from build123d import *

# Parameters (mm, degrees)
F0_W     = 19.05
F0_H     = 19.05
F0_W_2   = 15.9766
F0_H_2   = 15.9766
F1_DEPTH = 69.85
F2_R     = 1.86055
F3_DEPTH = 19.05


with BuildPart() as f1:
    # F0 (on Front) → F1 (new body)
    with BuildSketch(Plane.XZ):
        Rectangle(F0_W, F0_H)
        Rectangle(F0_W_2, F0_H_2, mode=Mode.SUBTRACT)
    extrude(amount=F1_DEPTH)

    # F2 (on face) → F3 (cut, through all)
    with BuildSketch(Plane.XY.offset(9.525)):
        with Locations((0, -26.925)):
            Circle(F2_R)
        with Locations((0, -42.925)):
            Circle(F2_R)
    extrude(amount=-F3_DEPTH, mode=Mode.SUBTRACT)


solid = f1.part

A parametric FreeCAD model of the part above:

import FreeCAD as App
import Part
import Sketcher

V = App.Vector
Q = App.Units.Quantity

doc = App.newDocument("Part")
body = doc.addObject("PartDesign::Body", "Body")

# Sketch on XZ plane
sketch1 = doc.addObject("Sketcher::SketchObject", "Sketch")
body.addObject(sketch1)
sketch1.AttachmentSupport = (doc.XZ_Plane, [""])
sketch1.MapMode = "FlatFace"
sketch1.addGeometry([
    Part.LineSegment(V(-9.525, 9.525, 0), V(-9.525, -9.525, 0)),  # 0
    Part.LineSegment(V(-9.525, -9.525, 0), V(9.525, -9.525, 0)),  # 1
    Part.LineSegment(V(9.525, -9.525, 0), V(9.525, 9.525, 0)),  # 2
    Part.LineSegment(V(9.525, 9.525, 0), V(-9.525, 9.525, 0)),  # 3
    Part.LineSegment(V(7.9883, -7.9883, 0), V(-7.9883, -7.9883, 0)),  # 4
    Part.LineSegment(V(-7.9883, -7.9883, 0), V(-7.9883, 7.9883, 0)),  # 5
    Part.LineSegment(V(-7.9883, 7.9883, 0), V(7.9883, 7.9883, 0)),  # 6
    Part.LineSegment(V(7.9883, 7.9883, 0), V(7.9883, -7.9883, 0)),  # 7
], False)
sketch1.addConstraint([
    Sketcher.Constraint("Coincident", 0, 2, 1, 1),
    Sketcher.Constraint("Coincident", 1, 2, 2, 1),
    Sketcher.Constraint("Coincident", 2, 2, 3, 1),
    Sketcher.Constraint("Coincident", 3, 2, 0, 1),
    Sketcher.Constraint("Coincident", 4, 2, 5, 1),
    Sketcher.Constraint("Coincident", 5, 2, 6, 1),
    Sketcher.Constraint("Coincident", 6, 2, 7, 1),
    Sketcher.Constraint("Coincident", 7, 2, 4, 1),
    Sketcher.Constraint("Vertical", 0),
    Sketcher.Constraint("Horizontal", 1),
    Sketcher.Constraint("Vertical", 2),
    Sketcher.Constraint("Horizontal", 3),
    Sketcher.Constraint("Horizontal", 4),
    Sketcher.Constraint("Vertical", 5),
    Sketcher.Constraint("Horizontal", 6),
    Sketcher.Constraint("Vertical", 7),
    Sketcher.Constraint("Symmetric", 0, 2, 2, 2, -1, 1),
    Sketcher.Constraint("Symmetric", 4, 2, 6, 2, -1, 1),
    Sketcher.Constraint("Equal", 3, 0),
    Sketcher.Constraint("Equal", 6, 5),
    Sketcher.Constraint("DistanceX", 1, 1, 1, 2, Q("0.75 in")),
    Sketcher.Constraint("DistanceX", 4, 2, 4, 1, Q("0.629 in")),
])
pad1 = doc.addObject("PartDesign::Pad", "Pad")
body.addObject(pad1)
pad1.Profile = sketch1
pad1.Length = Q("2.75 in")

# Sketch on XY plane
sketch2 = doc.addObject("Sketcher::SketchObject", "Sketch001")
body.addObject(sketch2)
sketch2.AttachmentSupport = (doc.XY_Plane, [""])
sketch2.MapMode = "FlatFace"
sketch2.AttachmentOffset = App.Placement(V(0, 0, 0.375 * 25.4), App.Rotation())
sketch2.addGeometry([
    Part.Circle(V(0, -26.925, 0), V(0, 0, 1), 1.86055),
    Part.Circle(V(0, -42.925, 0), V(0, 0, 1), 1.86055),
], False)
sketch2.addConstraint([
    Sketcher.Constraint("Equal", 0, 1),
    Sketcher.Constraint("PointOnObject", 0, 3, -2),
    Sketcher.Constraint("PointOnObject", 1, 3, -2),
    Sketcher.Constraint("Diameter", 0, Q("0.1465 in")),
    Sketcher.Constraint("DistanceY", 0, 3, -1, 1, Q("26.925 mm")),
    Sketcher.Constraint("DistanceY", 1, 3, -1, 1, Q("42.925 mm")),
])
pocket1 = doc.addObject("PartDesign::Pocket", "Pocket")
body.addObject(pocket1)
pocket1.Profile = sketch2
pocket1.Type = "ThroughAll"

doc.recompute()
